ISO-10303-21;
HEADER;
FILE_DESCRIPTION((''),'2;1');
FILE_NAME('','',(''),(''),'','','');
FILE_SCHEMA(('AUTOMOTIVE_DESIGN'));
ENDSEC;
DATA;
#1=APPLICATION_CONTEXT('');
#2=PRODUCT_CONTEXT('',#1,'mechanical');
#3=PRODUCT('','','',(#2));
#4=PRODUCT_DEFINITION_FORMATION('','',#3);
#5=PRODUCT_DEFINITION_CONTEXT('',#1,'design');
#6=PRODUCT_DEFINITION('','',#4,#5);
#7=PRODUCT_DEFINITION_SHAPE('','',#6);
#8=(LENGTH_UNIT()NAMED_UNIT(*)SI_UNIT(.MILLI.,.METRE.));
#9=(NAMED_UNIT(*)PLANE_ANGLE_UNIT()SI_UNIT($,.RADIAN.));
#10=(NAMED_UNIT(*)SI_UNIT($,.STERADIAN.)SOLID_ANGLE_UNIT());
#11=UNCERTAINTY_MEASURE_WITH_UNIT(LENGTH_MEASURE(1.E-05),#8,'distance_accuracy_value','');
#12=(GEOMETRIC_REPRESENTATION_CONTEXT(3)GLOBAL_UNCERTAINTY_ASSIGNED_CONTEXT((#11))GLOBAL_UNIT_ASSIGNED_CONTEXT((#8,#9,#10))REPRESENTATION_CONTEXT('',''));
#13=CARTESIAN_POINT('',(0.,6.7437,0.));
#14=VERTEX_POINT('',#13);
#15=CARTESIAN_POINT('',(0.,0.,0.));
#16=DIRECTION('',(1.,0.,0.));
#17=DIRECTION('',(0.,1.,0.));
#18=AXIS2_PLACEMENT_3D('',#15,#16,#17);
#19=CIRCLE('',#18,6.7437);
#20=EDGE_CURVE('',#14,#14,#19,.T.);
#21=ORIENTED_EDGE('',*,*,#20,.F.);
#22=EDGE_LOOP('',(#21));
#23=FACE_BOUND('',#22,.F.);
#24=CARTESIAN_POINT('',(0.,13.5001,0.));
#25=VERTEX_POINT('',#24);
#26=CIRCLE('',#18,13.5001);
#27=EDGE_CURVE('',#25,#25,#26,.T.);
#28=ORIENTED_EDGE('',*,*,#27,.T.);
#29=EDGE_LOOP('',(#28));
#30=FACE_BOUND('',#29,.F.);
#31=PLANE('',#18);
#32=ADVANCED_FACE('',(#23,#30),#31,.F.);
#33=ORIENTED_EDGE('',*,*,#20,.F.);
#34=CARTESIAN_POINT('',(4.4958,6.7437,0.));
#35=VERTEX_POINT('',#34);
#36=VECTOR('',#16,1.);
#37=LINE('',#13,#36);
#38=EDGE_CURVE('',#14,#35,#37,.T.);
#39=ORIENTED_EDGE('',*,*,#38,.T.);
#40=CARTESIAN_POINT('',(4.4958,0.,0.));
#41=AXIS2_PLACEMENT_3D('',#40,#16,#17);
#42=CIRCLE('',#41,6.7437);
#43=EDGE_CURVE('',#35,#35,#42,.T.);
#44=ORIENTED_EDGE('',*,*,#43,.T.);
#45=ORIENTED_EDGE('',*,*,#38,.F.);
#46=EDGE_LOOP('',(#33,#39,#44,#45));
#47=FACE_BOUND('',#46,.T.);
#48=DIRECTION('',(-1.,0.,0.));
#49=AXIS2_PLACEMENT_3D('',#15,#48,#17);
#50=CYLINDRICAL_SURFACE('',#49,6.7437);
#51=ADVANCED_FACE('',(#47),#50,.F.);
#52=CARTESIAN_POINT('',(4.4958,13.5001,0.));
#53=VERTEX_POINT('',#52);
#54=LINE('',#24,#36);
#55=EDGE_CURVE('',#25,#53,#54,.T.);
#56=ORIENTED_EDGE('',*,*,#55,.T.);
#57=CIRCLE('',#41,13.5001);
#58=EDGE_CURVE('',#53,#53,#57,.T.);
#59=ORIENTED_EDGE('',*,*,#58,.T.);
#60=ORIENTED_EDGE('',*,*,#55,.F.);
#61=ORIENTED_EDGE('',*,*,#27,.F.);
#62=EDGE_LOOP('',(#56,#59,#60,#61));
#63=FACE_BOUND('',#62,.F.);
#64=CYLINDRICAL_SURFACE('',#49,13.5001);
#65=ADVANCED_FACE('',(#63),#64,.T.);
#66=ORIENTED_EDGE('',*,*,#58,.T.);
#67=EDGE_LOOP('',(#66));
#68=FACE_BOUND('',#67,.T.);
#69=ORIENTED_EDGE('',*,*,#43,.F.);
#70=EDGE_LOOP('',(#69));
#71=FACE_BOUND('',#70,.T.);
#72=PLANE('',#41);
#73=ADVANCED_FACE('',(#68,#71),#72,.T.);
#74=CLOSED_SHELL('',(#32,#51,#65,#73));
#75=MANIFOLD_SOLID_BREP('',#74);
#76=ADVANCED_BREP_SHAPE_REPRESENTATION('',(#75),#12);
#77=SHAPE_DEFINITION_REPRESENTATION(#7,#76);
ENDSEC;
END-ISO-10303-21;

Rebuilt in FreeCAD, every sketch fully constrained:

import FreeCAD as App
import Part
import Sketcher

V = App.Vector
Q = App.Units.Quantity

doc = App.newDocument("Part")
params = doc.addObject("Spreadsheet::Sheet", "Params")
for row, (alias, value) in enumerate([
    ("sketch1_diameter", "1.063 in"),
    ("sketch1_diameter2", "0.531 in"),
    ("pad1_length", "0.177 in"),
], start=1):
    params.set(f"A{row}", alias)
    params.set(f"B{row}", "=" + value)
    params.setAlias(f"B{row}", alias)

body = doc.addObject("PartDesign::Body", "Body")

# Sketch on YZ plane
sketch1 = doc.addObject("Sketcher::SketchObject", "Sketch")
body.addObject(sketch1)
sketch1.AttachmentSupport = (doc.YZ_Plane, [""])
sketch1.MapMode = "FlatFace"
sketch1.addGeometry([
    Part.Circle(V(0, 0, 0), V(0, 0, 1), 13.5001),
    Part.Circle(V(0, 0, 0), V(0, 0, 1), 6.7437),
], False)
sketch1.addConstraint([
    Sketcher.Constraint("Coincident", 0, 3, -1, 1),
    Sketcher.Constraint("Coincident", 1, 3, -1, 1),
    Sketcher.Constraint("Diameter", 0, Q("1.063 in")),
    Sketcher.Constraint("Diameter", 1, Q("0.531 in")),
])
sketch1.setExpression("Constraints[2]", "Params.sketch1_diameter")
sketch1.setExpression("Constraints[3]", "Params.sketch1_diameter2")
pad1 = doc.addObject("PartDesign::Pad", "Pad")
body.addObject(pad1)
pad1.Profile = sketch1
pad1.setExpression("Length", "Params.pad1_length")

doc.recompute()
